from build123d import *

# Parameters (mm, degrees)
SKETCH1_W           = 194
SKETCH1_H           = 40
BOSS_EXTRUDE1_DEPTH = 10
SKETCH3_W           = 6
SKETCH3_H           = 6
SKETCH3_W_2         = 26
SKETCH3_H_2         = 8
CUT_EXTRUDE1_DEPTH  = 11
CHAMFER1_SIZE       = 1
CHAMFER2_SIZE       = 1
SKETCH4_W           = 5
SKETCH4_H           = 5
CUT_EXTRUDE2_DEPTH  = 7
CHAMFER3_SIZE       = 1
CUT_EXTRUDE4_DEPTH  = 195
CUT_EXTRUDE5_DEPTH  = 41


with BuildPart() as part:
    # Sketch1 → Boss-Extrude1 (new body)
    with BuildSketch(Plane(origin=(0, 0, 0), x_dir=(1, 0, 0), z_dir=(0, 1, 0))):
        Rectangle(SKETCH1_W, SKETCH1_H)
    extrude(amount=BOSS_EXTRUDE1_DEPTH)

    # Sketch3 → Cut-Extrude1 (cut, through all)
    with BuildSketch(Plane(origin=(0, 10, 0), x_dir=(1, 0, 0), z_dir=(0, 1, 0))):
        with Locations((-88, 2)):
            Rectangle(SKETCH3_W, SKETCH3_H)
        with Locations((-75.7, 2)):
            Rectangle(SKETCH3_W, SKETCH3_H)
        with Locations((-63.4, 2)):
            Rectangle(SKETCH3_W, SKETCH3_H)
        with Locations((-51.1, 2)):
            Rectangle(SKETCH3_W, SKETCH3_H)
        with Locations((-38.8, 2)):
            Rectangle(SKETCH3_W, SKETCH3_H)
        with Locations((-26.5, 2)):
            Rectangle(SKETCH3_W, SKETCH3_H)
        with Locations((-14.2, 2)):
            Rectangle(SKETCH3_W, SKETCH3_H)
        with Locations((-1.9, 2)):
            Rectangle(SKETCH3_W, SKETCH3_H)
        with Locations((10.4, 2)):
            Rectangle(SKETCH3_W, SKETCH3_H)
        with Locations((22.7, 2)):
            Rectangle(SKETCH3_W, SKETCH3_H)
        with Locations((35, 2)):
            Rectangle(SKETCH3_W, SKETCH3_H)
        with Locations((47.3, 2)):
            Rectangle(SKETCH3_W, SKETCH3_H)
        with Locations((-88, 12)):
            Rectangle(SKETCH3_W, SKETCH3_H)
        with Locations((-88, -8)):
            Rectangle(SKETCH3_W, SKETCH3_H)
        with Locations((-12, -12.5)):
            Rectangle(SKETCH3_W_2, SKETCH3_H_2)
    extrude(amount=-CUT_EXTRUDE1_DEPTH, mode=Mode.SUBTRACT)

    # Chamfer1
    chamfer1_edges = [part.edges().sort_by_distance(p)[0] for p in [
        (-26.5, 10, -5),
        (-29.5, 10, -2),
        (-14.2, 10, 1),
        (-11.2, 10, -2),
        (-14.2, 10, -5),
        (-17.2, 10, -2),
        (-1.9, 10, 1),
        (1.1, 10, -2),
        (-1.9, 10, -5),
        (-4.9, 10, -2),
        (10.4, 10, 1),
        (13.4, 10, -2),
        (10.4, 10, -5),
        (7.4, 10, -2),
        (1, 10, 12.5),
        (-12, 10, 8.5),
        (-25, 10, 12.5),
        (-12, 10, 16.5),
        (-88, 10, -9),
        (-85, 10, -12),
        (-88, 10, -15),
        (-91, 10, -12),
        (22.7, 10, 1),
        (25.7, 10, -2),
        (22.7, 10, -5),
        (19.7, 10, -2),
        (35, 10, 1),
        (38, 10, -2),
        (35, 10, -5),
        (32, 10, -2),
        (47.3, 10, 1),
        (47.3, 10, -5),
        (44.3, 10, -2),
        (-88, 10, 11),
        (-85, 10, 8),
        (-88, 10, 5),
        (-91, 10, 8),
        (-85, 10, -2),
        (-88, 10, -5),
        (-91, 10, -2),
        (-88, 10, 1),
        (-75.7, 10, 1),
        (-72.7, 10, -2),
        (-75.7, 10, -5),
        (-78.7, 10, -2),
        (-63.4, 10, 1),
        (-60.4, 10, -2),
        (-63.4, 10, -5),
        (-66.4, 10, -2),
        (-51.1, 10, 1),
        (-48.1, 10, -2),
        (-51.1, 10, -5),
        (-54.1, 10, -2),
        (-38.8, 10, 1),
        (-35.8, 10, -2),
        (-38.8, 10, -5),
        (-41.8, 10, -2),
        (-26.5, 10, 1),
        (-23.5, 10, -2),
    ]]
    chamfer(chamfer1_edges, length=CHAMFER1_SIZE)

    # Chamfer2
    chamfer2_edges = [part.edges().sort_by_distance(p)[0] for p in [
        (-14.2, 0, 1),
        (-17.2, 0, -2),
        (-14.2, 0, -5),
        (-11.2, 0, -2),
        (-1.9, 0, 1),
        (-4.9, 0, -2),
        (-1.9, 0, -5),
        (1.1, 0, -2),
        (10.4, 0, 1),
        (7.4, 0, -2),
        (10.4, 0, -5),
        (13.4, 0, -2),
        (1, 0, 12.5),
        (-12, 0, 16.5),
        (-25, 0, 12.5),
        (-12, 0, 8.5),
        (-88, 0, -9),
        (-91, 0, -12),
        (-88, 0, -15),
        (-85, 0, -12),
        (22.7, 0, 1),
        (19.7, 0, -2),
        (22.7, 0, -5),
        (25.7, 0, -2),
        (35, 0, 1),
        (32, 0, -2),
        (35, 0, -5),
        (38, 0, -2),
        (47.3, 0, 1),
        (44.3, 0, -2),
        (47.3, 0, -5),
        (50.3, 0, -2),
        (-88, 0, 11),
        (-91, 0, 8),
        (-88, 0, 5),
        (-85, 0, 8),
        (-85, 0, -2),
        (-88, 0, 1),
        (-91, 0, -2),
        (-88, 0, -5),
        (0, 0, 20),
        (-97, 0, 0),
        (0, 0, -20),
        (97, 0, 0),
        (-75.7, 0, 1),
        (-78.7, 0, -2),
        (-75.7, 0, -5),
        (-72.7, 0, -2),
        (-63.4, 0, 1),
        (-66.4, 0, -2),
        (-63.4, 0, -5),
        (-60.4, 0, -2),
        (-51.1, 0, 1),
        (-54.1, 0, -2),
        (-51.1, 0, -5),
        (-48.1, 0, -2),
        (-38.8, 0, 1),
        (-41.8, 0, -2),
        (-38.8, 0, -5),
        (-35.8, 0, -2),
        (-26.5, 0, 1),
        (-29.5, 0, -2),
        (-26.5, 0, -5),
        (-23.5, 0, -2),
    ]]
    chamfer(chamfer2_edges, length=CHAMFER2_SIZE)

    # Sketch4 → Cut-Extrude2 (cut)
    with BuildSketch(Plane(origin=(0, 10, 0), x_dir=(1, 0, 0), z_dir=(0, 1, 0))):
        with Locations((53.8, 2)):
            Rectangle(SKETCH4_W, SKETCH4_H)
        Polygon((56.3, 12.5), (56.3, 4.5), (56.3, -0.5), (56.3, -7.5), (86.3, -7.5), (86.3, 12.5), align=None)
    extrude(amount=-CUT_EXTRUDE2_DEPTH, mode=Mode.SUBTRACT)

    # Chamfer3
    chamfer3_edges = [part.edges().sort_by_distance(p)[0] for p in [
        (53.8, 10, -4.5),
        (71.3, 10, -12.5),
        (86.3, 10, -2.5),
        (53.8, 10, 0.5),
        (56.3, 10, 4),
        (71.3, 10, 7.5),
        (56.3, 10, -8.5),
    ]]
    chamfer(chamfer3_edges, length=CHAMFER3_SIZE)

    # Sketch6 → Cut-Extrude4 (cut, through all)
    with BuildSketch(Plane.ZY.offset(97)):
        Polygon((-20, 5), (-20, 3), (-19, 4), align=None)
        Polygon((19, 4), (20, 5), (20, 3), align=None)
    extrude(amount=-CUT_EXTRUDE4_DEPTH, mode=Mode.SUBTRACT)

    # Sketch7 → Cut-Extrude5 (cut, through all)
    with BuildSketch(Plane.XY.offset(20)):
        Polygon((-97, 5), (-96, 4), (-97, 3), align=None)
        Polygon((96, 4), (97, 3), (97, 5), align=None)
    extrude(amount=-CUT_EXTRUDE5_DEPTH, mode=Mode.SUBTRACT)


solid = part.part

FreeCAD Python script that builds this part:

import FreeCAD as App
import Part
import Sketcher

V = App.Vector


def edges_at(feature, points):
    """Names of the edges that pass closest to the given points."""
    edges = feature.Shape.Edges
    near = lambda p: min(range(len(edges)), key=lambda i: edges[i].distToShape(Part.Vertex(*p))[0])
    return sorted({f"Edge{near(p) + 1}" for p in points})

doc = App.newDocument("Part")
body = doc.addObject("PartDesign::Body", "Body")

sketch1 = body.newObject("Sketcher::SketchObject", "Sketch")
sketch1.AttachmentSupport = (doc.getObject("XZ_Plane"), [""])
sketch1.MapMode = "FlatFace"
sketch1.addGeometry([
    Part.LineSegment(V(-97, -20, 0), V(-97, 20, 0)),
    Part.LineSegment(V(-97, 20, 0), V(97, 20, 0)),
    Part.LineSegment(V(97, 20, 0), V(97, -20, 0)),
    Part.LineSegment(V(97, -20, 0), V(-97, -20, 0)),
], False)
sketch1.addConstraint([
    Sketcher.Constraint("Coincident", 0, 2, 1, 1),
    Sketcher.Constraint("Coincident", 1, 2, 2, 1),
    Sketcher.Constraint("Coincident", 2, 2, 3, 1),
    Sketcher.Constraint("Coincident", 3, 2, 0, 1),
    Sketcher.Constraint("Vertical", 0),
    Sketcher.Constraint("Horizontal", 1),
    Sketcher.Constraint("Vertical", 2),
    Sketcher.Constraint("Horizontal", 3),
    Sketcher.Constraint("Symmetric", 0, 2, 2, 2, -1, 1),
    Sketcher.Constraint("DistanceX", 1, 1, 1, 2, 194.0),
    Sketcher.Constraint("DistanceY", 0, 1, 0, 2, 40.0),
])
pad1 = body.newObject("PartDesign::Pad", "Pad")
pad1.Profile = sketch1
pad1.Length = 10
pad1.Reversed = True

sketch2 = body.newObject("Sketcher::SketchObject", "Sketch001")
sketch2.AttachmentSupport = (doc.getObject("XZ_Plane"), [""])
sketch2.MapMode = "FlatFace"
sketch2.AttachmentOffset = App.Placement(V(0, 0, -10), App.Rotation())
sketch2.addGeometry([
    Part.LineSegment(V(-91, -5, 0), V(-91, 1, 0)),
    Part.LineSegment(V(-91, 1, 0), V(-85, 1, 0)),
    Part.LineSegment(V(-85, 1, 0), V(-85, -5, 0)),
    Part.LineSegment(V(-85, -5, 0), V(-91, -5, 0)),
    Part.LineSegment(V(-79, -5, 0), V(-79, 1, 0)),
    Part.LineSegment(V(-79, 1, 0), V(-73, 1, 0)),
    Part.LineSegment(V(-73, 1, 0), V(-73, -5, 0)),
    Part.LineSegment(V(-73, -5, 0), V(-79, -5, 0)),
    Part.LineSegment(V(-66, -5, 0), V(-66, 1, 0)),
    Part.LineSegment(V(-66, 1, 0), V(-60, 1, 0)),
    Part.LineSegment(V(-60, 1, 0), V(-60, -5, 0)),
    Part.LineSegment(V(-60, -5, 0), V(-66, -5, 0)),
    Part.LineSegment(V(-54, -5, 0), V(-54, 1, 0)),
    Part.LineSegment(V(-54, 1, 0), V(-48, 1, 0)),
    Part.LineSegment(V(-48, 1, 0), V(-48, -5, 0)),
    Part.LineSegment(V(-48, -5, 0), V(-54, -5, 0)),
    Part.LineSegment(V(-42, -5, 0), V(-42, 1, 0)),
    Part.LineSegment(V(-42, 1, 0), V(-36, 1, 0)),
    Part.LineSegment(V(-36, 1, 0), V(-36, -5, 0)),
    Part.LineSegment(V(-36, -5, 0), V(-42, -5, 0)),
    Part.LineSegment(V(-30, -5, 0), V(-30, 1, 0)),
    Part.LineSegment(V(-30, 1, 0), V(-24, 1, 0)),
    Part.LineSegment(V(-24, 1, 0), V(-24, -5, 0)),
    Part.LineSegment(V(-24, -5, 0), V(-30, -5, 0)),
    Part.LineSegment(V(-17, -5, 0), V(-17, 1, 0)),
    Part.LineSegment(V(-17, 1, 0), V(-11, 1, 0)),
    Part.LineSegment(V(-11, 1, 0), V(-11, -5, 0)),
    Part.LineSegment(V(-11, -5, 0), V(-17, -5, 0)),
    Part.LineSegment(V(-5, -5, 0), V(-5, 1, 0)),
    Part.LineSegment(V(-5, 1, 0), V(1, 1, 0)),
    Part.LineSegment(V(1, 1, 0), V(1, -5, 0)),
    Part.LineSegment(V(1, -5, 0), V(-5, -5, 0)),
    Part.LineSegment(V(7, -5, 0), V(7, 1, 0)),
    Part.LineSegment(V(7, 1, 0), V(13, 1, 0)),
    Part.LineSegment(V(13, 1, 0), V(13, -5, 0)),
    Part.LineSegment(V(13, -5, 0), V(7, -5, 0)),
    Part.LineSegment(V(20, -5, 0), V(20, 1, 0)),
    Part.LineSegment(V(20, 1, 0), V(26, 1, 0)),
    Part.LineSegment(V(26, 1, 0), V(26, -5, 0)),
    Part.LineSegment(V(26, -5, 0), V(20, -5, 0)),
    Part.LineSegment(V(32, -5, 0), V(32, 1, 0)),
    Part.LineSegment(V(32, 1, 0), V(38, 1, 0)),
    Part.LineSegment(V(38, 1, 0), V(38, -5, 0)),
    Part.LineSegment(V(38, -5, 0), V(32, -5, 0)),
    Part.LineSegment(V(44, -5, 0), V(44, 1, 0)),
    Part.LineSegment(V(44, 1, 0), V(50, 1, 0)),
    Part.LineSegment(V(50, 1, 0), V(50, -5, 0)),
    Part.LineSegment(V(50, -5, 0), V(44, -5, 0)),
    Part.LineSegment(V(-91, -15, 0), V(-91, -9, 0)),
    Part.LineSegment(V(-91, -9, 0), V(-85, -9, 0)),
    Part.LineSegment(V(-85, -9, 0), V(-85, -15, 0)),
    Part.LineSegment(V(-85, -15, 0), V(-91, -15, 0)),
    Part.LineSegment(V(-91, 5, 0), V(-91, 11, 0)),
    Part.LineSegment(V(-91, 11, 0), V(-85, 11, 0)),
    Part.LineSegment(V(-85, 11, 0), V(-85, 5, 0)),
    Part.LineSegment(V(-85, 5, 0), V(-91, 5, 0)),
    Part.LineSegment(V(-25, 8, 0), V(-25, 16, 0)),
    Part.LineSegment(V(-25, 16, 0), V(1, 16, 0)),
    Part.LineSegment(V(1, 16, 0), V(1, 8, 0)),
    Part.LineSegment(V(1, 8, 0), V(-25, 8, 0)),
], False)
sketch2.addConstraint([
    Sketcher.Constraint("Coincident", 0, 2, 1, 1),
    Sketcher.Constraint("Coincident", 1, 2, 2, 1),
    Sketcher.Constraint("Coincident", 2, 2, 3, 1),
    Sketcher.Constraint("Coincident", 3, 2, 0, 1),
    Sketcher.Constraint("Coincident", 4, 2, 5, 1),
    Sketcher.Constraint("Coincident", 5, 2, 6, 1),
    Sketcher.Constraint("Coincident", 6, 2, 7, 1),
    Sketcher.Constraint("Coincident", 7, 2, 4, 1),
    Sketcher.Constraint("Coincident", 8, 2, 9, 1),
    Sketcher.Constraint("Coincident", 9, 2, 10, 1),
    Sketcher.Constraint("Coincident", 10, 2, 11, 1),
    Sketcher.Constraint("Coincident", 11, 2, 8, 1),
    Sketcher.Constraint("Coincident", 12, 2, 13, 1),
    Sketcher.Constraint("Coincident", 13, 2, 14, 1),
    Sketcher.Constraint("Coincident", 14, 2, 15, 1),
    Sketcher.Constraint("Coincident", 15, 2, 12, 1),
    Sketcher.Constraint("Coincident", 16, 2, 17, 1),
    Sketcher.Constraint("Coincident", 17, 2, 18, 1),
    Sketcher.Constraint("Coincident", 18, 2, 19, 1),
    Sketcher.Constraint("Coincident", 19, 2, 16, 1),
    Sketcher.Constraint("Coincident", 20, 2, 21, 1),
    Sketcher.Constraint("Coincident", 21, 2, 22, 1),
    Sketcher.Constraint("Coincident", 22, 2, 23, 1),
    Sketcher.Constraint("Coincident", 23, 2, 20, 1),
    Sketcher.Constraint("Coincident", 24, 2, 25, 1),
    Sketcher.Constraint("Coincident", 25, 2, 26, 1),
    Sketcher.Constraint("Coincident", 26, 2, 27, 1),
    Sketcher.Constraint("Coincident", 27, 2, 24, 1),
    Sketcher.Constraint("Coincident", 28, 2, 29, 1),
    Sketcher.Constraint("Coincident", 29, 2, 30, 1),
    Sketcher.Constraint("Coincident", 30, 2, 31, 1),
    Sketcher.Constraint("Coincident", 31, 2, 28, 1),
    Sketcher.Constraint("Coincident", 32, 2, 33, 1),
    Sketcher.Constraint("Coincident", 33, 2, 34, 1),
    Sketcher.Constraint("Coincident", 34, 2, 35, 1),
    Sketcher.Constraint("Coincident", 35, 2, 32, 1),
    Sketcher.Constraint("Coincident", 36, 2, 37, 1),
    Sketcher.Constraint("Coincident", 37, 2, 38, 1),
    Sketcher.Constraint("Coincident", 38, 2, 39, 1),
    Sketcher.Constraint("Coincident", 39, 2, 36, 1),
    Sketcher.Constraint("Coincident", 40, 2, 41, 1),
    Sketcher.Constraint("Coincident", 41, 2, 42, 1),
    Sketcher.Constraint("Coincident", 42, 2, 43, 1),
    Sketcher.Constraint("Coincident", 43, 2, 40, 1),
    Sketcher.Constraint("Coincident", 44, 2, 45, 1),
    Sketcher.Constraint("Coincident", 45, 2, 46, 1),
    Sketcher.Constraint("Coincident", 46, 2, 47, 1),
    Sketcher.Constraint("Coincident", 47, 2, 44, 1),
    Sketcher.Constraint("Coincident", 48, 2, 49, 1),
    Sketcher.Constraint("Coincident", 49, 2, 50, 1),
    Sketcher.Constraint("Coincident", 50, 2, 51, 1),
    Sketcher.Constraint("Coincident", 51, 2, 48, 1),
    Sketcher.Constraint("Coincident", 52, 2, 53, 1),
    Sketcher.Constraint("Coincident", 53, 2, 54, 1),
    Sketcher.Constraint("Coincident", 54, 2, 55, 1),
    Sketcher.Constraint("Coincident", 55, 2, 52, 1),
    Sketcher.Constraint("Coincident", 56, 2, 57, 1),
    Sketcher.Constraint("Coincident", 57, 2, 58, 1),
    Sketcher.Constraint("Coincident", 58, 2, 59, 1),
    Sketcher.Constraint("Coincident", 59, 2, 56, 1),
    Sketcher.Constraint("Vertical", 0),
    Sketcher.Constraint("Horizontal", 1),
    Sketcher.Constraint("Vertical", 2),
    Sketcher.Constraint("Horizontal", 3),
    Sketcher.Constraint("Vertical", 4),
    Sketcher.Constraint("Horizontal", 5),
    Sketcher.Constraint("Vertical", 6),
    Sketcher.Constraint("Horizontal", 7),
    Sketcher.Constraint("Vertical", 8),
    Sketcher.Constraint("Horizontal", 9),
    Sketcher.Constraint("Vertical", 10),
    Sketcher.Constraint("Horizontal", 11),
    Sketcher.Constraint("Vertical", 12),
    Sketcher.Constraint("Horizontal", 13),
    Sketcher.Constraint("Vertical", 14),
    Sketcher.Constraint("Horizontal", 15),
    Sketcher.Constraint("Vertical", 16),
    Sketcher.Constraint("Horizontal", 17),
    Sketcher.Constraint("Vertical", 18),
    Sketcher.Constraint("Horizontal", 19),
    Sketcher.Constraint("Vertical", 20),
    Sketcher.Constraint("Horizontal", 21),
    Sketcher.Constraint("Vertical", 22),
    Sketcher.Constraint("Horizontal", 23),
    Sketcher.Constraint("Vertical", 24),
    Sketcher.Constraint("Horizontal", 25),
    Sketcher.Constraint("Vertical", 26),
    Sketcher.Constraint("Horizontal", 27),
    Sketcher.Constraint("Vertical", 28),
    Sketcher.Constraint("Horizontal", 29),
    Sketcher.Constraint("Vertical", 30),
    Sketcher.Constraint("Horizontal", 31),
    Sketcher.Constraint("Vertical", 32),
    Sketcher.Constraint("Horizontal", 33),
    Sketcher.Constraint("Vertical", 34),
    Sketcher.Constraint("Horizontal", 35),
    Sketcher.Constraint("Vertical", 36),
    Sketcher.Constraint("Horizontal", 37),
    Sketcher.Constraint("Vertical", 38),
    Sketcher.Constraint("Horizontal", 39),
    Sketcher.Constraint("Vertical", 40),
    Sketcher.Constraint("Horizontal", 41),
    Sketcher.Constraint("Vertical", 42),
    Sketcher.Constraint("Horizontal", 43),
    Sketcher.Constraint("Vertical", 44),
    Sketcher.Constraint("Horizontal", 45),
    Sketcher.Constraint("Vertical", 46),
    Sketcher.Constraint("Horizontal", 47),
    Sketcher.Constraint("Vertical", 48),
    Sketcher.Constraint("Horizontal", 49),
    Sketcher.Constraint("Vertical", 50),
    Sketcher.Constraint("Horizontal", 51),
    Sketcher.Constraint("Vertical", 52),
    Sketcher.Constraint("Horizontal", 53),
    Sketcher.Constraint("Vertical", 54),
    Sketcher.Constraint("Horizontal", 55),
    Sketcher.Constraint("Vertical", 56),
    Sketcher.Constraint("Horizontal", 57),
    Sketcher.Constraint("Vertical", 58),
    Sketcher.Constraint("Horizontal", 59),
    Sketcher.Constraint("Symmetric", 2, 2, 54, 2, -1),
    Sketcher.Constraint("Horizontal", 1, 2, 4, 2),
    Sketcher.Constraint("Horizontal", 3, 2, 6, 2),
    Sketcher.Constraint("Horizontal", 5, 2, 8, 2),
    Sketcher.Constraint("Horizontal", 7, 2, 10, 2),
    Sketcher.Constraint("Horizontal", 9, 2, 12, 2),
    Sketcher.Constraint("Horizontal", 11, 2, 14, 2),
    Sketcher.Constraint("Horizontal", 13, 2, 16, 2),
    Sketcher.Constraint("Horizontal", 15, 2, 18, 2),
    Sketcher.Constraint("Horizontal", 17, 2, 20, 2),
    Sketcher.Constraint("Horizontal", 19, 2, 22, 2),
    Sketcher.Constraint("Horizontal", 21, 2, 24, 2),
    Sketcher.Constraint("Horizontal", 23, 2, 26, 2),
    Sketcher.Constraint("Horizontal", 25, 2, 28, 2),
    Sketcher.Constraint("Horizontal", 27, 2, 30, 2),
    Sketcher.Constraint("Horizontal", 29, 2, 32, 2),
    Sketcher.Constraint("Horizontal", 31, 2, 34, 2),
    Sketcher.Constraint("Horizontal", 33, 2, 36, 2),
    Sketcher.Constraint("Horizontal", 35, 2, 38, 2),
    Sketcher.Constraint("Horizontal", 37, 2, 40, 2),
    Sketcher.Constraint("Horizontal", 39, 2, 42, 2),
    Sketcher.Constraint("Horizontal", 41, 2, 44, 2),
    Sketcher.Constraint("Horizontal", 43, 2, 46, 2),
    Sketcher.Constraint("Vertical", 3, 2, 48, 2),
    Sketcher.Constraint("Vertical", 2, 2, 49, 2),
    Sketcher.Constraint("Vertical", 51, 2, 52, 2),
    Sketcher.Constraint("Equal", 3, 5),
    Sketcher.Constraint("Equal", 7, 9),
    Sketcher.Constraint("Equal", 11, 13),
    Sketcher.Constraint("Equal", 15, 17),
    Sketcher.Constraint("Equal", 19, 21),
    Sketcher.Constraint("Equal", 23, 25),
    Sketcher.Constraint("Equal", 27, 29),
    Sketcher.Constraint("Equal", 31, 33),
    Sketcher.Constraint("Equal", 35, 37),
    Sketcher.Constraint("Equal", 39, 41),
    Sketcher.Constraint("Equal", 43, 45),
    Sketcher.Constraint("Equal", 55, 0),
    Sketcher.Constraint("Equal", 46, 48),
    Sketcher.Constraint("Equal", 50, 52),
    Sketcher.Constraint("DistanceX", 1, 1, 1, 2, 6.0),
    Sketcher.Constraint("DistanceX", 57, 1, 57, 2, 26.0),
    Sketcher.Constraint("DistanceY", 56, 1, 56, 2, 8.0),
    Sketcher.Constraint("DistanceX", 0, 2, -1, 1, 91.0),
    Sketcher.Constraint("DistanceY", -1, 1, 0, 2, 1.0),
    Sketcher.Constraint("DistanceX", -1, 1, 40, 2, 32.0),
    Sketcher.Constraint("DistanceY", 48, 2, -1, 1, 9.0),
    Sketcher.Constraint("DistanceX", 56, 2, -1, 1, 25.0),
    Sketcher.Constraint("DistanceX", 4, 2, -1, 1, 78.7),
    Sketcher.Constraint("DistanceX", 8, 2, -1, 1, 66.4),
    Sketcher.Constraint("DistanceX", 12, 2, -1, 1, 54.1),
    Sketcher.Constraint("DistanceX", 16, 2, -1, 1, 41.8),
    Sketcher.Constraint("DistanceX", 20, 2, -1, 1, 29.5),
    Sketcher.Constraint("DistanceX", 24, 2, -1, 1, 17.2),
    Sketcher.Constraint("DistanceX", 28, 2, -1, 1, 4.9),
    Sketcher.Constraint("DistanceX", -1, 1, 32, 2, 7.4),
    Sketcher.Constraint("DistanceX", -1, 1, 36, 2, 19.7),
    Sketcher.Constraint("DistanceX", -1, 1, 44, 2, 44.3),
    Sketcher.Constraint("DistanceY", -1, 1, 56, 2, 16.5),
])
pocket1 = body.newObject("PartDesign::Pocket", "Pocket")
pocket1.Profile = sketch2
pocket1.Type = "ThroughAll"
pocket1.Reversed = True
doc.recompute()

chamfer = body.newObject("PartDesign::Chamfer", "Chamfer")
chamfer.Base = (pocket1, edges_at(pocket1, [
    (-26.5, 10, -5),
    (-29.5, 10, -2),
    (-14.2, 10, 1),
    (-11.2, 10, -2),
    (-14.2, 10, -5),
    (-17.2, 10, -2),
    (-1.9, 10, 1),
    (1.1, 10, -2),
    (-1.9, 10, -5),
    (-4.9, 10, -2),
    (10.4, 10, 1),
    (13.4, 10, -2),
    (10.4, 10, -5),
    (7.4, 10, -2),
    (1, 10, 12.5),
    (-12, 10, 8.5),
    (-25, 10, 12.5),
    (-12, 10, 16.5),
    (-88, 10, -9),
    (-85, 10, -12),
    (-88, 10, -15),
    (-91, 10, -12),
    (22.7, 10, 1),
    (25.7, 10, -2),
    (22.7, 10, -5),
    (19.7, 10, -2),
    (35, 10, 1),
    (38, 10, -2),
    (35, 10, -5),
    (32, 10, -2),
    (47.3, 10, 1),
    (47.3, 10, -5),
    (44.3, 10, -2),
    (-88, 10, 11),
    (-85, 10, 8),
    (-88, 10, 5),
    (-91, 10, 8),
    (-85, 10, -2),
    (-88, 10, -5),
    (-91, 10, -2),
    (-88, 10, 1),
    (-75.7, 10, 1),
    (-72.7, 10, -2),
    (-75.7, 10, -5),
    (-78.7, 10, -2),
    (-63.4, 10, 1),
    (-60.4, 10, -2),
    (-63.4, 10, -5),
    (-66.4, 10, -2),
    (-51.1, 10, 1),
    (-48.1, 10, -2),
    (-51.1, 10, -5),
    (-54.1, 10, -2),
    (-38.8, 10, 1),
    (-35.8, 10, -2),
    (-38.8, 10, -5),
    (-41.8, 10, -2),
    (-26.5, 10, 1),
    (-23.5, 10, -2),
]))
chamfer.Size = 1
doc.recompute()

chamfer2 = body.newObject("PartDesign::Chamfer", "Chamfer001")
chamfer2.Base = (chamfer, edges_at(chamfer, [
    (-14.2, 0, 1),
    (-17.2, 0, -2),
    (-14.2, 0, -5),
    (-11.2, 0, -2),
    (-1.9, 0, 1),
    (-4.9, 0, -2),
    (-1.9, 0, -5),
    (1.1, 0, -2),
    (10.4, 0, 1),
    (7.4, 0, -2),
    (10.4, 0, -5),
    (13.4, 0, -2),
    (1, 0, 12.5),
    (-12, 0, 16.5),
    (-25, 0, 12.5),
    (-12, 0, 8.5),
    (-88, 0, -9),
    (-91, 0, -12),
    (-88, 0, -15),
    (-85, 0, -12),
    (22.7, 0, 1),
    (19.7, 0, -2),
    (22.7, 0, -5),
    (25.7, 0, -2),
    (35, 0, 1),
    (32, 0, -2),
    (35, 0, -5),
    (38, 0, -2),
    (47.3, 0, 1),
    (44.3, 0, -2),
    (47.3, 0, -5),
    (50.3, 0, -2),
    (-88, 0, 11),
    (-91, 0, 8),
    (-88, 0, 5),
    (-85, 0, 8),
    (-85, 0, -2),
    (-88, 0, 1),
    (-91, 0, -2),
    (-88, 0, -5),
    (0, 0, 20),
    (-97, 0, 0),
    (0, 0, -20),
    (97, 0, 0),
    (-75.7, 0, 1),
    (-78.7, 0, -2),
    (-75.7, 0, -5),
    (-72.7, 0, -2),
    (-63.4, 0, 1),
    (-66.4, 0, -2),
    (-63.4, 0, -5),
    (-60.4, 0, -2),
    (-51.1, 0, 1),
    (-54.1, 0, -2),
    (-51.1, 0, -5),
    (-48.1, 0, -2),
    (-38.8, 0, 1),
    (-41.8, 0, -2),
    (-38.8, 0, -5),
    (-35.8, 0, -2),
    (-26.5, 0, 1),
    (-29.5, 0, -2),
    (-26.5, 0, -5),
    (-23.5, 0, -2),
]))
chamfer2.Size = 1

sketch3 = body.newObject("Sketcher::SketchObject", "Sketch002")
sketch3.AttachmentSupport = (doc.getObject("XZ_Plane"), [""])
sketch3.MapMode = "FlatFace"
sketch3.AttachmentOffset = App.Placement(V(0, 0, -10), App.Rotation())
sketch3.addGeometry([
    Part.LineSegment(V(51, -4, 0), V(51, 0, 0)),
    Part.LineSegment(V(51, 0, 0), V(56, 0, 0)),
    Part.LineSegment(V(56, 0, 0), V(56, 8, 0)),
    Part.LineSegment(V(56, 8, 0), V(86, 8, 0)),
    Part.LineSegment(V(86, 8, 0), V(86, -12, 0)),
    Part.LineSegment(V(86, -12, 0), V(56, -12, 0)),
    Part.LineSegment(V(56, -12, 0), V(56, -4, 0)),
    Part.LineSegment(V(56, -4, 0), V(51, -4, 0)),
], False)
sketch3.addConstraint([
    Sketcher.Constraint("Coincident", 0, 2, 1, 1),
    Sketcher.Constraint("Coincident", 1, 2, 2, 1),
    Sketcher.Constraint("Coincident", 2, 2, 3, 1),
    Sketcher.Constraint("Coincident", 3, 2, 4, 1),
    Sketcher.Constraint("Coincident", 4, 2, 5, 1),
    Sketcher.Constraint("Coincident", 5, 2, 6, 1),
    Sketcher.Constraint("Coincident", 6, 2, 7, 1),
    Sketcher.Constraint("Coincident", 7, 2, 0, 1),
    Sketcher.Constraint("Vertical", 0),
    Sketcher.Constraint("Horizontal", 1),
    Sketcher.Constraint("Vertical", 2),
    Sketcher.Constraint("Horizontal", 3),
    Sketcher.Constraint("Vertical", 4),
    Sketcher.Constraint("Horizontal", 5),
    Sketcher.Constraint("Vertical", 6),
    Sketcher.Constraint("Horizontal", 7),
    Sketcher.Constraint("Vertical", 2, 2, 5, 2),
    Sketcher.Constraint("Equal", 7, 0),
    Sketcher.Constraint("DistanceX", 1, 1, 1, 2, 5.0),
    Sketcher.Constraint("DistanceX", 3, 1, 3, 2, 30.0),
    Sketcher.Constraint("DistanceY", 2, 1, 2, 2, 7.0),
    Sketcher.Constraint("DistanceY", 4, 2, 4, 1, 20.0),
    Sketcher.Constraint("DistanceX", -1, 1, 0, 2, 51.3),
    Sketcher.Constraint("DistanceY", -1, 1, 0, 2, 0.5),
])
pocket2 = body.newObject("PartDesign::Pocket", "Pocket001")
pocket2.Profile = sketch3
pocket2.Length = 7
pocket2.Reversed = True
doc.recompute()

chamfer3 = body.newObject("PartDesign::Chamfer", "Chamfer002")
chamfer3.Base = (pocket2, edges_at(pocket2, [
    (53.8, 10, -4.5),
    (71.3, 10, -12.5),
    (86.3, 10, -2.5),
    (53.8, 10, 0.5),
    (56.3, 10, 4),
    (71.3, 10, 7.5),
    (56.3, 10, -8.5),
]))
chamfer3.Size = 1

sketch4 = body.newObject("Sketcher::SketchObject", "Sketch003")
sketch4.AttachmentSupport = (doc.getObject("YZ_Plane"), [""])
sketch4.MapMode = "FlatFace"
sketch4.AttachmentOffset = App.Placement(V(0, 0, -97), App.Rotation())
sketch4.addGeometry([
    Part.LineSegment(V(5, -20, 0), V(3, -20, 0)),
    Part.LineSegment(V(3, -20, 0), V(4, -19, 0)),
    Part.LineSegment(V(4, -19, 0), V(5, -20, 0)),
    Part.LineSegment(V(5, 20, 0), V(4, 19, 0)),
    Part.LineSegment(V(4, 19, 0), V(3, 20, 0)),
    Part.LineSegment(V(3, 20, 0), V(5, 20, 0)),
], False)
sketch4.addConstraint([
    Sketcher.Constraint("Coincident", 0, 2, 1, 1),
    Sketcher.Constraint("Coincident", 1, 2, 2, 1),
    Sketcher.Constraint("Coincident", 2, 2, 0, 1),
    Sketcher.Constraint("Coincident", 3, 2, 4, 1),
    Sketcher.Constraint("Coincident", 4, 2, 5, 1),
    Sketcher.Constraint("Coincident", 5, 2, 3, 1),
    Sketcher.Constraint("Horizontal", 0),
    Sketcher.Constraint("Horizontal", 5),
    Sketcher.Constraint("Symmetric", 1, 2, 3, 2, -1),
    Sketcher.Constraint("Symmetric", 0, 2, 4, 2, -1),
    Sketcher.Constraint("Perpendicular", 1, 2),
    Sketcher.Constraint("Perpendicular", 2, 3),
    Sketcher.Constraint("Perpendicular", 3, 4),
    Sketcher.Constraint("DistanceX", 0, 2, 0, 1, 2.0),
    Sketcher.Constraint("DistanceX", -1, 1, 0, 2, 3.0),
    Sketcher.Constraint("DistanceY", 0, 2, -1, 1, 20.0),
])
pocket3 = body.newObject("PartDesign::Pocket", "Pocket002")
pocket3.Profile = sketch4
pocket3.Type = "ThroughAll"
pocket3.Reversed = True

sketch5 = body.newObject("Sketcher::SketchObject", "Sketch004")
sketch5.AttachmentSupport = (doc.getObject("XY_Plane"), [""])
sketch5.MapMode = "FlatFace"
sketch5.AttachmentOffset = App.Placement(V(0, 0, 20), App.Rotation())
sketch5.addGeometry([
    Part.LineSegment(V(-96, 4, 0), V(-97, 5, 0)),
    Part.LineSegment(V(-97, 5, 0), V(-97, 3, 0)),
    Part.LineSegment(V(-97, 3, 0), V(-96, 4, 0)),
    Part.LineSegment(V(96, 4, 0), V(97, 3, 0)),
    Part.LineSegment(V(97, 3, 0), V(97, 5, 0)),
    Part.LineSegment(V(97, 5, 0), V(96, 4, 0)),
], False)
sketch5.addConstraint([
    Sketcher.Constraint("Coincident", 0, 2, 1, 1),
    Sketcher.Constraint("Coincident", 1, 2, 2, 1),
    Sketcher.Constraint("Coincident", 2, 2, 0, 1),
    Sketcher.Constraint("Coincident", 3, 2, 4, 1),
    Sketcher.Constraint("Coincident", 4, 2, 5, 1),
    Sketcher.Constraint("Coincident", 5, 2, 3, 1),
    Sketcher.Constraint("Vertical", 1),
    Sketcher.Constraint("Vertical", 4),
    Sketcher.Constraint("Symmetric", 1, 2, 3, 2, -2),
    Sketcher.Constraint("Symmetric", 2, 2, 5, 2, -2),
    Sketcher.Constraint("Perpendicular", 0, 2),
    Sketcher.Constraint("Perpendicular", 2, 3),
    Sketcher.Constraint("Perpendicular", 3, 5),
    Sketcher.Constraint("DistanceY", 1, 2, 1, 1, 2.0),
    Sketcher.Constraint("DistanceX", 0, 2, -1, 1, 97.0),
    Sketcher.Constraint("DistanceY", -1, 1, 0, 2, 5.0),
])
pocket4 = body.newObject("PartDesign::Pocket", "Pocket003")
pocket4.Profile = sketch5
pocket4.Type = "ThroughAll"

doc.recompute()
